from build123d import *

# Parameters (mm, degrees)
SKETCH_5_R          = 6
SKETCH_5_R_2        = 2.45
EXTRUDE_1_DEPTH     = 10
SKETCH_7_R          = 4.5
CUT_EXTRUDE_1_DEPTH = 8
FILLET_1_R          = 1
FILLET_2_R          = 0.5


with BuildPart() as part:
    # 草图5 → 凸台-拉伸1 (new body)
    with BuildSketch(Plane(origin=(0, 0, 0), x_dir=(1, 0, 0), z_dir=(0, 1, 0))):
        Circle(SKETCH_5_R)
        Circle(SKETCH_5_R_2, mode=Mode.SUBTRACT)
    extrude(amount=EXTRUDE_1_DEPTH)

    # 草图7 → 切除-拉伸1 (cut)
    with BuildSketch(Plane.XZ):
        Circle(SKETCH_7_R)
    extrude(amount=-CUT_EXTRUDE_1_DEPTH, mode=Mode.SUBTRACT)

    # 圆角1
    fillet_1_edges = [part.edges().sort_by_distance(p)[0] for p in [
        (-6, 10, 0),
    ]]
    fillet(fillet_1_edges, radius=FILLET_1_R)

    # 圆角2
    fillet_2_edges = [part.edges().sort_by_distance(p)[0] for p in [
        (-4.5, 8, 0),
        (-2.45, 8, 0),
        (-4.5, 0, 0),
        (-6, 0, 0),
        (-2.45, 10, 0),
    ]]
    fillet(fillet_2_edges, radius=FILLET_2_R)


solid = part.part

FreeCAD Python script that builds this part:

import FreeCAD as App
import Part
import Sketcher
from FreeCAD import Vector


def edges_at(feature, points):
    """Names of the edges that pass closest to the given points."""
    edges = feature.Shape.Edges
    near = lambda p: min(range(len(edges)), key=lambda i: edges[i].distToShape(Part.Vertex(*p))[0])
    return sorted({f"Edge{near(p) + 1}" for p in points})

doc = App.newDocument("Part")
params = doc.addObject("Spreadsheet::Sheet", "Params")
for row, (alias, value) in enumerate([
    ("sketch1_diameter", "12 mm"),
    ("sketch1_diameter2", "4.9 mm"),
    ("pad1_length", "10 mm"),
    ("sketch2_diameter", "9 mm"),
    ("pocket1_length", "8 mm"),
    ("fillet_radius", "1 mm"),
    ("fillet2_radius", "0.5 mm"),
], start=1):
    params.set(f"A{row}", alias)
    params.set(f"B{row}", "=" + value)
    params.setAlias(f"B{row}", alias)

body = doc.addObject("PartDesign::Body", "Body")

# Sketch on XZ plane
sketch1 = body.newObject("Sketcher::SketchObject", "Sketch")
sketch1.AttachmentSupport = (doc.getObject("XZ_Plane"), [""])
sketch1.MapMode = "FlatFace"
sketch1.addGeometry(Part.Circle(Vector(0, 0, 0), Vector(0, 0, 1), 6), False)
sketch1.addGeometry(Part.Circle(Vector(0, 0, 0), Vector(0, 0, 1), 2.45), False)
sketch1.addConstraint(Sketcher.Constraint("Coincident", 0, 3, -1, 1))
sketch1.addConstraint(Sketcher.Constraint("Coincident", 1, 3, -1, 1))
sketch1.addConstraint(Sketcher.Constraint("Diameter", 0, 12.0))
sketch1.addConstraint(Sketcher.Constraint("Diameter", 1, 4.9))
sketch1.setExpression("Constraints[2]", "Params.sketch1_diameter")
sketch1.setExpression("Constraints[3]", "Params.sketch1_diameter2")
pad1 = body.newObject("PartDesign::Pad", "Pad")
pad1.Profile = sketch1
pad1.setExpression("Length", "Params.pad1_length")
pad1.Reversed = True

# Sketch on XZ plane
sketch2 = body.newObject("Sketcher::SketchObject", "Sketch001")
sketch2.AttachmentSupport = (doc.getObject("XZ_Plane"), [""])
sketch2.MapMode = "FlatFace"
sketch2.addGeometry(Part.Circle(Vector(0, 0, 0), Vector(0, 0, 1), 4.5), False)
sketch2.addConstraint(Sketcher.Constraint("Coincident", 0, 3, -1, 1))
sketch2.addConstraint(Sketcher.Constraint("Diameter", 0, 9.0))
sketch2.setExpression("Constraints[1]", "Params.sketch2_diameter")
pocket1 = body.newObject("PartDesign::Pocket", "Pocket")
pocket1.Profile = sketch2
pocket1.setExpression("Length", "Params.pocket1_length")
doc.recompute()

fillet = body.newObject("PartDesign::Fillet", "Fillet")
fillet.Base = (pocket1, edges_at(pocket1, [(-6, 10, 0)]))
fillet.setExpression("Radius", "Params.fillet_radius")
doc.recompute()

fillet2 = body.newObject("PartDesign::Fillet", "Fillet001")
fillet2.Base = (fillet, edges_at(fillet, [
    (-4.5, 8, 0),
    (-2.45, 8, 0),
    (-4.5, 0, 0),
    (-6, 0, 0),
    (-2.45, 10, 0),
]))
fillet2.setExpression("Radius", "Params.fillet2_radius")

doc.recompute()
